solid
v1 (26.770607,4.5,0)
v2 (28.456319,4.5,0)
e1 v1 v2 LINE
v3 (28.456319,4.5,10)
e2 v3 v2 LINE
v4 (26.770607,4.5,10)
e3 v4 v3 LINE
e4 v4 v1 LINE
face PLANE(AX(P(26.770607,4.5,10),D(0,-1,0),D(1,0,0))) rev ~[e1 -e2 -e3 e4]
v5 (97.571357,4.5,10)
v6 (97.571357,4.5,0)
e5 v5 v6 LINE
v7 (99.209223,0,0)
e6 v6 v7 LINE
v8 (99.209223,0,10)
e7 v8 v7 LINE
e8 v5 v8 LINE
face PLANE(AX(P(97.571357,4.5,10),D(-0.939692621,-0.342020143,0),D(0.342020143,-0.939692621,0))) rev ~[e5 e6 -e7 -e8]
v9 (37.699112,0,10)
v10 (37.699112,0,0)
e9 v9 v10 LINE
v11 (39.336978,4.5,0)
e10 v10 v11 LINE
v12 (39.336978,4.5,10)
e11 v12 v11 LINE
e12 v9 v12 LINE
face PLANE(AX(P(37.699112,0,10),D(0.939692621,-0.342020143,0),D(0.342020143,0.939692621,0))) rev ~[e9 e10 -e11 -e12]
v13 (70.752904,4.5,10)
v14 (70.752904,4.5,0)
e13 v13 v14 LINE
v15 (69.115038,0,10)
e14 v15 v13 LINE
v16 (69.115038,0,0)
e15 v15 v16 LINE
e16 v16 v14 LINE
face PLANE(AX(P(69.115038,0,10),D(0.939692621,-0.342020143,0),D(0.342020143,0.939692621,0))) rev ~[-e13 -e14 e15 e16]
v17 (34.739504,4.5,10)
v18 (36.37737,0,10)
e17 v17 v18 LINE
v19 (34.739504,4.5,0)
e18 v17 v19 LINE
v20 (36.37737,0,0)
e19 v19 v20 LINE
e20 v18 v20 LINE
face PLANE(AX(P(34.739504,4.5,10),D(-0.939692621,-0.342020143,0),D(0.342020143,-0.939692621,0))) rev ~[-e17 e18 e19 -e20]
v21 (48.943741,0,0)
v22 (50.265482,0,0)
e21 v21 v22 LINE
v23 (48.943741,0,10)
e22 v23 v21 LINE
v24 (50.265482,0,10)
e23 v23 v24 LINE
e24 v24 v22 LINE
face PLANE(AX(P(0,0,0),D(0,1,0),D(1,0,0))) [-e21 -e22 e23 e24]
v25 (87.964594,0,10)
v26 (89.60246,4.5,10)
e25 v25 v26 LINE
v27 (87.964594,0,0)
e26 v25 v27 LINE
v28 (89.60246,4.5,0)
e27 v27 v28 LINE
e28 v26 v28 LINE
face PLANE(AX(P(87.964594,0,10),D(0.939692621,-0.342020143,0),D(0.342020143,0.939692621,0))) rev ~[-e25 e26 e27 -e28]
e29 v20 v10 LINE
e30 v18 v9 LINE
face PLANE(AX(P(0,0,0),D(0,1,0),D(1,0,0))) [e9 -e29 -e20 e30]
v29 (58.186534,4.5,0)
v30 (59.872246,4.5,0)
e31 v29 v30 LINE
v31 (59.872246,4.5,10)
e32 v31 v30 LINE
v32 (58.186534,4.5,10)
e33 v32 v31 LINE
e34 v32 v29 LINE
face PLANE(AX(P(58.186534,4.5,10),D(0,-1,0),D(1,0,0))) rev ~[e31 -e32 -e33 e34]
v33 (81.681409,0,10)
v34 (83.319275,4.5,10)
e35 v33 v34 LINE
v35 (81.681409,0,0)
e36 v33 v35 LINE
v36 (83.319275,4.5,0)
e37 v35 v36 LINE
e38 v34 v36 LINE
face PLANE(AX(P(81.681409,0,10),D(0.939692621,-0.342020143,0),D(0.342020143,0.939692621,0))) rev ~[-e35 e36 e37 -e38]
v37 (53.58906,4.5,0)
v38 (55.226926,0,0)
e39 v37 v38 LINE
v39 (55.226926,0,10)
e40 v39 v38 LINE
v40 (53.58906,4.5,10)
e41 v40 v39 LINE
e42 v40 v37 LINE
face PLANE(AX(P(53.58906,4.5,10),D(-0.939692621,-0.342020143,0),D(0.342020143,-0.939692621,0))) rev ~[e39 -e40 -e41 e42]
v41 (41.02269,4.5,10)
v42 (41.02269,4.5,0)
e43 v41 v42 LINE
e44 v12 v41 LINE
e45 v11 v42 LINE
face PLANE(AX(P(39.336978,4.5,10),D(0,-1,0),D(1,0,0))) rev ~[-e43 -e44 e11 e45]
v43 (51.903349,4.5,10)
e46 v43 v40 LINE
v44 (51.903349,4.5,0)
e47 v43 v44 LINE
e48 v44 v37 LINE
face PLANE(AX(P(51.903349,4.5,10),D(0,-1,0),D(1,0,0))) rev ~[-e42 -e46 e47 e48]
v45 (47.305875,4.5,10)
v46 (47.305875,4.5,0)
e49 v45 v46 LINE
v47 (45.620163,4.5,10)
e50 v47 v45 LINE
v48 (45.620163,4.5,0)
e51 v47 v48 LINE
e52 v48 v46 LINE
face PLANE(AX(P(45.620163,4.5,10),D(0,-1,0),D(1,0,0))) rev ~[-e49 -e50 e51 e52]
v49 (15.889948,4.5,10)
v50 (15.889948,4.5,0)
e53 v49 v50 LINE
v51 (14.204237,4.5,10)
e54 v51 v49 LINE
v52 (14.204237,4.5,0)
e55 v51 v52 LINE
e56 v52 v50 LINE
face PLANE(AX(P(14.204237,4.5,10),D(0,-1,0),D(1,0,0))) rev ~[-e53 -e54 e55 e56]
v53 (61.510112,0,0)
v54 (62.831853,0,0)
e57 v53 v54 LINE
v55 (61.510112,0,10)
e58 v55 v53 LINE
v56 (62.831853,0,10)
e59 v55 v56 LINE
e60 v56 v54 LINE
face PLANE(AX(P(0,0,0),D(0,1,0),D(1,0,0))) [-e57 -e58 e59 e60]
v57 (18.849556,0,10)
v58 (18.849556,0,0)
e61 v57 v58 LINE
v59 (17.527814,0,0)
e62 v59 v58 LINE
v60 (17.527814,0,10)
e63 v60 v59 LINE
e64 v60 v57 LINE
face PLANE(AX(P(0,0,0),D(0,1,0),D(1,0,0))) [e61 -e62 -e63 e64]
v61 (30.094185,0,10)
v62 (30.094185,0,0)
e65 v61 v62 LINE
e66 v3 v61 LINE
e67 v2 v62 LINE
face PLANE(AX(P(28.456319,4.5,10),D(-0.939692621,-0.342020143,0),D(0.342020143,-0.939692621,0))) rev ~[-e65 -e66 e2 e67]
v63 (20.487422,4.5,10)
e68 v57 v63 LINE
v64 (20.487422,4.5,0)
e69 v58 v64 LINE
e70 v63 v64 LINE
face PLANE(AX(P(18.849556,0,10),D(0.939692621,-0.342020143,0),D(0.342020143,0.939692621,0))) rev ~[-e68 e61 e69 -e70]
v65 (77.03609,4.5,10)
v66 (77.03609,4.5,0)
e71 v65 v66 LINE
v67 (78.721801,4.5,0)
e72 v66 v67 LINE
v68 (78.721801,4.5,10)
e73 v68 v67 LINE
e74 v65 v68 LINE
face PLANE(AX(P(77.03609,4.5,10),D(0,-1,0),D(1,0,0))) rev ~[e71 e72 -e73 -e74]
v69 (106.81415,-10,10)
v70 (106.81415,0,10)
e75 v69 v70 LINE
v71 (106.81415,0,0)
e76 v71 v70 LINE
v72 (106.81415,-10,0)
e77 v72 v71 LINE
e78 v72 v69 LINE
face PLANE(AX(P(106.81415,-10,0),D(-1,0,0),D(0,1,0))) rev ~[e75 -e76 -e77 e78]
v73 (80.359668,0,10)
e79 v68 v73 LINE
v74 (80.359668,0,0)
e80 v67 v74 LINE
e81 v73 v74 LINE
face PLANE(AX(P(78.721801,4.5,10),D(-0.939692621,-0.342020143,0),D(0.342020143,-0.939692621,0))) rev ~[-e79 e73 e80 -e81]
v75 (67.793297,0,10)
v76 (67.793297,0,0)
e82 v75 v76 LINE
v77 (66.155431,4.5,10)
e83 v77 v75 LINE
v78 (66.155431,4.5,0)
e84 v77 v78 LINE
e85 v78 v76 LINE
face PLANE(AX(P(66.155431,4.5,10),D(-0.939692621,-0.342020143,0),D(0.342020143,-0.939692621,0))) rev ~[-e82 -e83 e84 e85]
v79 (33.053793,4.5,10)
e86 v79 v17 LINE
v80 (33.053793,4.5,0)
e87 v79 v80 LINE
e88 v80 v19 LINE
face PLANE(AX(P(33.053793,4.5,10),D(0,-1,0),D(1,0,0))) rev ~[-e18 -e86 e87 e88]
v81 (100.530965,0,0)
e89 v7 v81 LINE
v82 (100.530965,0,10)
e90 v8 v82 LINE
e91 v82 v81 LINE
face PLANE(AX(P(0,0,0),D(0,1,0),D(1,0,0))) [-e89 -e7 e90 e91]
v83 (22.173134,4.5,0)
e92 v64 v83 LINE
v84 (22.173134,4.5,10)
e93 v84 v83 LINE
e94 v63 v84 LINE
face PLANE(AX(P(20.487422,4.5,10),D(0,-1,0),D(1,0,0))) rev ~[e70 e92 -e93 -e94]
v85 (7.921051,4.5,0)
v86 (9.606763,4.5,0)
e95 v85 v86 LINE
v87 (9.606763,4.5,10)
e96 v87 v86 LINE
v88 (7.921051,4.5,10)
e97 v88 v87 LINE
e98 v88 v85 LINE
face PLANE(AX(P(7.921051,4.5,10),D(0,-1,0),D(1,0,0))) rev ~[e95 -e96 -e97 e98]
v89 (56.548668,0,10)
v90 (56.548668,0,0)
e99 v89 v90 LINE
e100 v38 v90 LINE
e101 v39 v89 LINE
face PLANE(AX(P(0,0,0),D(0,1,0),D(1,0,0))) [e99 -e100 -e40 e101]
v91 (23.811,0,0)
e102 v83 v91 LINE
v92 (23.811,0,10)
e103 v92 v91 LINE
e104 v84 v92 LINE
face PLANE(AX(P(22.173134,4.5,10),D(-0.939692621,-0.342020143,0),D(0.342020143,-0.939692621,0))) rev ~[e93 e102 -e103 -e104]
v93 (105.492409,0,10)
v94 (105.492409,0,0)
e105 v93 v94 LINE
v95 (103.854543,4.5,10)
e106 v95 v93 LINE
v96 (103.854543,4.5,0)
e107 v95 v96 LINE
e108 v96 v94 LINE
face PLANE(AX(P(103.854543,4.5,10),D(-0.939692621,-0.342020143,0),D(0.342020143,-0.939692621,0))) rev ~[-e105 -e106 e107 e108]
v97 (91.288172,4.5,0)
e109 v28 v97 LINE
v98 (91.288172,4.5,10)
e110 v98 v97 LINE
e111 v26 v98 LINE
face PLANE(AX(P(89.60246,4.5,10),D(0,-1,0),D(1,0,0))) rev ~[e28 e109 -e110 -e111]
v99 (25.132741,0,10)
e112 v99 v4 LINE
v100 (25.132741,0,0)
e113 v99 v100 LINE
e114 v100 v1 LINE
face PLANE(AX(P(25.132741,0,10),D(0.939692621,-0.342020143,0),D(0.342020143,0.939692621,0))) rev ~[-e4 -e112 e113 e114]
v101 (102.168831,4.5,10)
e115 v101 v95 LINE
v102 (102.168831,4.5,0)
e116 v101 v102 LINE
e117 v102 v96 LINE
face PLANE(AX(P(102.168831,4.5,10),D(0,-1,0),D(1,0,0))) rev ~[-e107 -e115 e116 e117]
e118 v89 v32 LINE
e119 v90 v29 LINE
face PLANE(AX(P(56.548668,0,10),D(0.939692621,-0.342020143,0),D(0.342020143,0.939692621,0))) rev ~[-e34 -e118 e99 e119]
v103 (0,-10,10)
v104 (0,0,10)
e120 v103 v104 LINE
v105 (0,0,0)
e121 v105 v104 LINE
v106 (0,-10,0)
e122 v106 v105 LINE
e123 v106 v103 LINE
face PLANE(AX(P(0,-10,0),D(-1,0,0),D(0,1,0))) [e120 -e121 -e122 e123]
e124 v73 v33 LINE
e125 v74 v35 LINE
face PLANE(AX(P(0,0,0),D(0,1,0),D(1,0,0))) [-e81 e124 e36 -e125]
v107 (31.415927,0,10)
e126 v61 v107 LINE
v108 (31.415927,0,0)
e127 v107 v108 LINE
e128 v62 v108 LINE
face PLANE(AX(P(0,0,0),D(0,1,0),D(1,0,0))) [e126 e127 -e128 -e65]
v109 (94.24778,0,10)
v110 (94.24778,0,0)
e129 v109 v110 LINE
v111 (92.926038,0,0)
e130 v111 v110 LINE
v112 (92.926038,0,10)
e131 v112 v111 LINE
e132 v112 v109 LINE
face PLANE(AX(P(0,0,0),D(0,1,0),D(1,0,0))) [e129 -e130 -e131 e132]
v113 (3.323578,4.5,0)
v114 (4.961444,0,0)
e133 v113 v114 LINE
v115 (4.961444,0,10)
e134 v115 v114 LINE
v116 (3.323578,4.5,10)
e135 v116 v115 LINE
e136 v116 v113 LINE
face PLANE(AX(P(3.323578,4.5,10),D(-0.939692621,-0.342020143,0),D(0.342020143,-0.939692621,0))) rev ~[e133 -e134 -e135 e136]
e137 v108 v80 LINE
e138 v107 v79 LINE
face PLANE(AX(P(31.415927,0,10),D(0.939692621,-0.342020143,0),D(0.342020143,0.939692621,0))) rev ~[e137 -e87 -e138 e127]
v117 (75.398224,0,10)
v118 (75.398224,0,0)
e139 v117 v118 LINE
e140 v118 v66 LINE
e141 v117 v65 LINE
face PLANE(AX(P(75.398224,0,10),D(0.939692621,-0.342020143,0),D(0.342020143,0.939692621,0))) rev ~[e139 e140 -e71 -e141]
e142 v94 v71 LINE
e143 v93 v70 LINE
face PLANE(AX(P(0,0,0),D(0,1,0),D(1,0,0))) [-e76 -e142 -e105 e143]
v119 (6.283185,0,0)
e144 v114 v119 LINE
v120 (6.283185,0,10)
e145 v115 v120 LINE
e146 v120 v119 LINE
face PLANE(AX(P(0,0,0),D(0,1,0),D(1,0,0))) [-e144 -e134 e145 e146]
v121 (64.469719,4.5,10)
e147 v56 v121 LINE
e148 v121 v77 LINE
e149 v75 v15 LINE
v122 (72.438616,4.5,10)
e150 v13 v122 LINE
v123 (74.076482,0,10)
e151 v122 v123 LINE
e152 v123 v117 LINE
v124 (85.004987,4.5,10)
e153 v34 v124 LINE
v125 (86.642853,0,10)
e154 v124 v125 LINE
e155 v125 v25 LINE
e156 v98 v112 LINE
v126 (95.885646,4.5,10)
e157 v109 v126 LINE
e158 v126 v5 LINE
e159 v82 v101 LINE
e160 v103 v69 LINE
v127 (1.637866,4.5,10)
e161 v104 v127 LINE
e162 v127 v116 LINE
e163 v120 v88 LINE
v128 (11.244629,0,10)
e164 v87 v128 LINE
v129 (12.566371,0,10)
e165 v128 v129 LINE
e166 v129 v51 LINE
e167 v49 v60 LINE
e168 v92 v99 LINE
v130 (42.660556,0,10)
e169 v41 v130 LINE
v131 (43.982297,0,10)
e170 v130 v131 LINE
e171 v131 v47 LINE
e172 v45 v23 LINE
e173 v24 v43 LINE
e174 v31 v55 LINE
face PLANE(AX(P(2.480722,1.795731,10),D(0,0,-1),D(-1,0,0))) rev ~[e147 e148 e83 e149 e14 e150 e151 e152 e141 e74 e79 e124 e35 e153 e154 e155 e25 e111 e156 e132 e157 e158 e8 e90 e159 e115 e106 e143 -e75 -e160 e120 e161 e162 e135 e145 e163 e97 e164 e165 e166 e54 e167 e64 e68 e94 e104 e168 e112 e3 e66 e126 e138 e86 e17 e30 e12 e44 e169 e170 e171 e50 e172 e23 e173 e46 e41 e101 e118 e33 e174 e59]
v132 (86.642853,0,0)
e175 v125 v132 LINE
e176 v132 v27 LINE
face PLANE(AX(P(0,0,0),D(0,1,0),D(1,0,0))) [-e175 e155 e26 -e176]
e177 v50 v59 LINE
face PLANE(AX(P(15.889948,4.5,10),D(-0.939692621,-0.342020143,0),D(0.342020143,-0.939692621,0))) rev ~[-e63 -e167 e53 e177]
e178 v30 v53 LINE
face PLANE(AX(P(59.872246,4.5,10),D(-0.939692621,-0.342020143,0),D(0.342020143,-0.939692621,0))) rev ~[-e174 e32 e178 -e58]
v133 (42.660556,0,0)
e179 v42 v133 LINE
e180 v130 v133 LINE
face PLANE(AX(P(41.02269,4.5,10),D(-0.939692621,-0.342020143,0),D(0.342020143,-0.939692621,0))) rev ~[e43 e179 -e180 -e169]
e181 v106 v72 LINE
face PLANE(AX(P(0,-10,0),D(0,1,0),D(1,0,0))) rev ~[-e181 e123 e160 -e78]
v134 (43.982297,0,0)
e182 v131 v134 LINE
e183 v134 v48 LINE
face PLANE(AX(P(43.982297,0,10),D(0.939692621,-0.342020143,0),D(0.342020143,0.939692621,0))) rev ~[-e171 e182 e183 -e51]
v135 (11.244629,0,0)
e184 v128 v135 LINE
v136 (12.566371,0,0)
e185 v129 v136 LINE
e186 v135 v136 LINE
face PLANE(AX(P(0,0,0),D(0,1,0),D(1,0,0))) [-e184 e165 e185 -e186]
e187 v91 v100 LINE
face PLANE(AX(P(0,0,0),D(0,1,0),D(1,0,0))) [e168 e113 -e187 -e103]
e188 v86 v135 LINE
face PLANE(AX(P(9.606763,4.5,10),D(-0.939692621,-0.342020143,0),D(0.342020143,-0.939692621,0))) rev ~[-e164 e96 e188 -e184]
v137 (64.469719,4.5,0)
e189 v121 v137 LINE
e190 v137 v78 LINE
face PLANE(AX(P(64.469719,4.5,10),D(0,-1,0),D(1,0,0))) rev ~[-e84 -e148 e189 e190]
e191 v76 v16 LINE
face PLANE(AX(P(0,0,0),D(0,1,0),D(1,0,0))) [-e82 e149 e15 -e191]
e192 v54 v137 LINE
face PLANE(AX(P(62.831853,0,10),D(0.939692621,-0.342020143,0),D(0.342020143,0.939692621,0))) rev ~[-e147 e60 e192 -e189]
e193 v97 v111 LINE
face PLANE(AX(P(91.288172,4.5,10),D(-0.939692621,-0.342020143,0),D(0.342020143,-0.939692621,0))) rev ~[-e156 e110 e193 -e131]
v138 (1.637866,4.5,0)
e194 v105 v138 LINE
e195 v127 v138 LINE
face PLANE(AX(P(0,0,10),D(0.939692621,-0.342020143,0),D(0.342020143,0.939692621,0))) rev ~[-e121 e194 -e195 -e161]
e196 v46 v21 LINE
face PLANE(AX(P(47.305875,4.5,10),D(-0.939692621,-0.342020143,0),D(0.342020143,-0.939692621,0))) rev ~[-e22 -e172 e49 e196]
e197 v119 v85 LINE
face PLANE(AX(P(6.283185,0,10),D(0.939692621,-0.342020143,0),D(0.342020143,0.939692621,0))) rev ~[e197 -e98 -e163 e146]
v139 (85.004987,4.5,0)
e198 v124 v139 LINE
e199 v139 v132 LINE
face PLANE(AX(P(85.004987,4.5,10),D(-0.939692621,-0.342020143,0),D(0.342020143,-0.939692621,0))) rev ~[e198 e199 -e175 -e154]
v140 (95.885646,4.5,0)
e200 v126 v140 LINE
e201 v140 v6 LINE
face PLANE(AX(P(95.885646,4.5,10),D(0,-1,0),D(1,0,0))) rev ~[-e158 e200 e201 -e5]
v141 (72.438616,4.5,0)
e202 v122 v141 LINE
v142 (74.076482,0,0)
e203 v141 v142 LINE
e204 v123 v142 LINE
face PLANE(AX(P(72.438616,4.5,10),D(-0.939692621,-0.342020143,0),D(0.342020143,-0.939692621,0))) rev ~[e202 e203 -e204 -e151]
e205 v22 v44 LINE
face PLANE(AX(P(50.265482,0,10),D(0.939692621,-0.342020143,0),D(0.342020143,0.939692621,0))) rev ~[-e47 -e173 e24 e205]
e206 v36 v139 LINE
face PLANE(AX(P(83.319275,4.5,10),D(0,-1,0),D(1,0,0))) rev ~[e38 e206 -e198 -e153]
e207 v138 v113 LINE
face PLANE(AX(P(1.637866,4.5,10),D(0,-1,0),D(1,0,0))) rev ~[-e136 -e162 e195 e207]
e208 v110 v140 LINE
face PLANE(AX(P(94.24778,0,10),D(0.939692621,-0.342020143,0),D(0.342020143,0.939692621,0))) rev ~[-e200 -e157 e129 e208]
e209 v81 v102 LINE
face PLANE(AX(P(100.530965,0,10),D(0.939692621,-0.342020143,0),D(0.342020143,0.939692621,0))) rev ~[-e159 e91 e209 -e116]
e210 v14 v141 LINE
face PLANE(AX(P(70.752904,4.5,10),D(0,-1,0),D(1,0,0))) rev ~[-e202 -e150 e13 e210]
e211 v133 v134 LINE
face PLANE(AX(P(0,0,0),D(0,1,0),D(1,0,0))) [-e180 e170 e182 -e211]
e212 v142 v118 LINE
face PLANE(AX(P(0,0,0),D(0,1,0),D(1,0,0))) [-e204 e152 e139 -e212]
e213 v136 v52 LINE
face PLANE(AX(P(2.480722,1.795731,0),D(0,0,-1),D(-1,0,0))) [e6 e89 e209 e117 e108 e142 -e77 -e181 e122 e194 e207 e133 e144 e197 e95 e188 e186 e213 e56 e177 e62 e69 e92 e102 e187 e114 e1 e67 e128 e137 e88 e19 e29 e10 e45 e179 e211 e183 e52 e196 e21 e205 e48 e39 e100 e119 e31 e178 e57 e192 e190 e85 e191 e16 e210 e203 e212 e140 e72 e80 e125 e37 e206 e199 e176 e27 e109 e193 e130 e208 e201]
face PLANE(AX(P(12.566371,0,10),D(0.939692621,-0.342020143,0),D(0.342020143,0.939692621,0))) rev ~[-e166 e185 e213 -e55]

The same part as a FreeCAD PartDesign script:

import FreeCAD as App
import Part
import Sketcher

V = App.Vector
Q = App.Units.Quantity


def add_polygon(sketch, points):
    """Adds a closed chain of lines whose ends are joined by coincident constraints."""
    first, n = sketch.GeometryCount, len(points)
    for a, b in zip(points, points[1:] + points[:1]):
        sketch.addGeometry(Part.LineSegment(App.Vector(*a, 0), App.Vector(*b, 0)), False)
    for i in range(n):
        sketch.addConstraint(Sketcher.Constraint("Coincident", first + i, 2, first + (i + 1) % n, 1))

doc = App.newDocument("Part")
body = doc.addObject("PartDesign::Body", "Body")

# Sketch on XY plane
sketch1 = doc.addObject("Sketcher::SketchObject", "Sketch")
body.addObject(sketch1)
sketch1.AttachmentSupport = (doc.XY_Plane, [""])
sketch1.MapMode = "FlatFace"
add_polygon(sketch1, [(0, 0), (0, -10), (107, -10), (107, 0)])  # lines 0-3
sketch1.addConstraint([
    Sketcher.Constraint("Vertical", 0),
    Sketcher.Constraint("Horizontal", 1),
    Sketcher.Constraint("Vertical", 2),
    Sketcher.Constraint("Horizontal", 3),
    Sketcher.Constraint("Coincident", 3, 2, -1, 1),
    Sketcher.Constraint("DistanceY", 0, 2, 0, 1, 10.0),
    Sketcher.Constraint("DistanceX", 1, 1, 1, 2, 106.81415),
])
pad1 = doc.addObject("PartDesign::Pad", "Pad")
body.addObject(pad1)
pad1.Profile = sketch1
pad1.Length = 10

# Sketch on XY plane
sketch2 = doc.addObject("Sketcher::SketchObject", "Sketch001")
body.addObject(sketch2)
sketch2.AttachmentSupport = (doc.XY_Plane, [""])
sketch2.MapMode = "FlatFace"
sketch2.AttachmentOffset = App.Placement(V(0, 0, 10), App.Rotation())
add_polygon(sketch2, [(1.6, 4.5), (0, 0), (5, 0), (3.3, 4.5)])  # lines 0-3
sketch2.addConstraint([
    Sketcher.Constraint("Horizontal", 1),
    Sketcher.Constraint("Horizontal", 3),
    Sketcher.Constraint("Coincident", 0, 2, -1, 1),
    Sketcher.Constraint("Equal", 0, 2),
    Sketcher.Constraint("Angle", 0, Q("-110 deg")),
    Sketcher.Constraint("DistanceY", -1, 1, 2, 2, 4.5),
    Sketcher.Constraint("DistanceX", 3, 2, 3, 1, 1.685712),
])
pad2 = doc.addObject("PartDesign::Pad", "Pad001")
body.addObject(pad2)
pad2.Profile = sketch2
pad2.Length = 10
pad2.Reversed = True
doc.recompute()

linearpattern = doc.addObject("PartDesign::LinearPattern", "LinearPattern")
body.addObject(linearpattern)
linearpattern.Originals = [pad2]
linearpattern.Direction = (doc.X_Axis, [""])
linearpattern.Mode = "offset"
linearpattern.Offset = 6.283185
linearpattern.Occurrences = 17
body.Tip = linearpattern

doc.recompute()
